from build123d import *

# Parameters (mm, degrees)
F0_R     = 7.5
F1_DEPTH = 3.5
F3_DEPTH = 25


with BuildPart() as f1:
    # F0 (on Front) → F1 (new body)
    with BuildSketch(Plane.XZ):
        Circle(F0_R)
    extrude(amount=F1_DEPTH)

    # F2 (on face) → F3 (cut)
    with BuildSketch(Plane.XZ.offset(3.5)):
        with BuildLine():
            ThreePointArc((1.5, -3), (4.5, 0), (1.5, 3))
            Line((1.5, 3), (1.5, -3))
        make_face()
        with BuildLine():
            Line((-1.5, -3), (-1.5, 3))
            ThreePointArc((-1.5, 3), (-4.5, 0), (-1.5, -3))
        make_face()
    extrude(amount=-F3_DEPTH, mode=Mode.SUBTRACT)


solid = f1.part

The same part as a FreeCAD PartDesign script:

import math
import FreeCAD as App
import Part
import Sketcher
from FreeCAD import Vector

doc = App.newDocument("Part")
body = doc.addObject("PartDesign::Body", "Body")

# Sketch on XZ plane
sketch1 = body.newObject("Sketcher::SketchObject", "Sketch")
sketch1.AttachmentSupport = (doc.getObject("XZ_Plane"), [""])
sketch1.MapMode = "FlatFace"
sketch1.addGeometry(Part.Circle(Vector(0, 0, 0), Vector(0, 0, 1), 8), False)
sketch1.addConstraint([
    Sketcher.Constraint("Coincident", 0, 3, -1, 1),
    Sketcher.Constraint("Diameter", 0, 15.0),
])
pad1 = body.newObject("PartDesign::Pad", "Pad")
pad1.Profile = sketch1
pad1.Length = 3.5

# Sketch on XZ plane
sketch2 = body.newObject("Sketcher::SketchObject", "Sketch001")
sketch2.AttachmentSupport = (doc.getObject("XZ_Plane"), [""])
sketch2.MapMode = "FlatFace"
sketch2.AttachmentOffset = App.Placement(Vector(0, 0, 3.5), App.Rotation())
sketch2.addGeometry([
    Part.ArcOfCircle(Part.Circle(Vector(1.5, 0, 0), Vector(0, 0, 1), 3), math.radians(-90), math.radians(90)),
    Part.LineSegment(Vector(1.5, 3, 0), Vector(1.5, -3, 0)),
    Part.LineSegment(Vector(-1.5, -3, 0), Vector(-1.5, 3, 0)),
    Part.ArcOfCircle(Part.Circle(Vector(-1.5, 0, 0), Vector(0, 0, 1), 3), math.radians(90), math.radians(270)),
], False)
sketch2.addConstraint([
    Sketcher.Constraint("Coincident", 0, 1, 1, 2),
    Sketcher.Constraint("Coincident", 1, 1, 0, 2),
    Sketcher.Constraint("Coincident", 2, 1, 3, 2),
    Sketcher.Constraint("Coincident", 3, 1, 2, 2),
    Sketcher.Constraint("Vertical", 1),
    Sketcher.Constraint("Vertical", 2),
    Sketcher.Constraint("Equal", 0, 3),
    Sketcher.Constraint("Symmetric", 0, 3, 3, 3, -1, 1),
    Sketcher.Constraint("Symmetric", 0, 1, 2, 1, -2),
    Sketcher.Constraint("Vertical", 3, 3, 2, 1),
    Sketcher.Constraint("Radius", 0, 3.0),
    Sketcher.Constraint("DistanceX", 3, 3, 0, 3, 3.0),
])
pocket1 = body.newObject("PartDesign::Pocket", "Pocket")
pocket1.Profile = sketch2
pocket1.Length = 25

doc.recompute()
